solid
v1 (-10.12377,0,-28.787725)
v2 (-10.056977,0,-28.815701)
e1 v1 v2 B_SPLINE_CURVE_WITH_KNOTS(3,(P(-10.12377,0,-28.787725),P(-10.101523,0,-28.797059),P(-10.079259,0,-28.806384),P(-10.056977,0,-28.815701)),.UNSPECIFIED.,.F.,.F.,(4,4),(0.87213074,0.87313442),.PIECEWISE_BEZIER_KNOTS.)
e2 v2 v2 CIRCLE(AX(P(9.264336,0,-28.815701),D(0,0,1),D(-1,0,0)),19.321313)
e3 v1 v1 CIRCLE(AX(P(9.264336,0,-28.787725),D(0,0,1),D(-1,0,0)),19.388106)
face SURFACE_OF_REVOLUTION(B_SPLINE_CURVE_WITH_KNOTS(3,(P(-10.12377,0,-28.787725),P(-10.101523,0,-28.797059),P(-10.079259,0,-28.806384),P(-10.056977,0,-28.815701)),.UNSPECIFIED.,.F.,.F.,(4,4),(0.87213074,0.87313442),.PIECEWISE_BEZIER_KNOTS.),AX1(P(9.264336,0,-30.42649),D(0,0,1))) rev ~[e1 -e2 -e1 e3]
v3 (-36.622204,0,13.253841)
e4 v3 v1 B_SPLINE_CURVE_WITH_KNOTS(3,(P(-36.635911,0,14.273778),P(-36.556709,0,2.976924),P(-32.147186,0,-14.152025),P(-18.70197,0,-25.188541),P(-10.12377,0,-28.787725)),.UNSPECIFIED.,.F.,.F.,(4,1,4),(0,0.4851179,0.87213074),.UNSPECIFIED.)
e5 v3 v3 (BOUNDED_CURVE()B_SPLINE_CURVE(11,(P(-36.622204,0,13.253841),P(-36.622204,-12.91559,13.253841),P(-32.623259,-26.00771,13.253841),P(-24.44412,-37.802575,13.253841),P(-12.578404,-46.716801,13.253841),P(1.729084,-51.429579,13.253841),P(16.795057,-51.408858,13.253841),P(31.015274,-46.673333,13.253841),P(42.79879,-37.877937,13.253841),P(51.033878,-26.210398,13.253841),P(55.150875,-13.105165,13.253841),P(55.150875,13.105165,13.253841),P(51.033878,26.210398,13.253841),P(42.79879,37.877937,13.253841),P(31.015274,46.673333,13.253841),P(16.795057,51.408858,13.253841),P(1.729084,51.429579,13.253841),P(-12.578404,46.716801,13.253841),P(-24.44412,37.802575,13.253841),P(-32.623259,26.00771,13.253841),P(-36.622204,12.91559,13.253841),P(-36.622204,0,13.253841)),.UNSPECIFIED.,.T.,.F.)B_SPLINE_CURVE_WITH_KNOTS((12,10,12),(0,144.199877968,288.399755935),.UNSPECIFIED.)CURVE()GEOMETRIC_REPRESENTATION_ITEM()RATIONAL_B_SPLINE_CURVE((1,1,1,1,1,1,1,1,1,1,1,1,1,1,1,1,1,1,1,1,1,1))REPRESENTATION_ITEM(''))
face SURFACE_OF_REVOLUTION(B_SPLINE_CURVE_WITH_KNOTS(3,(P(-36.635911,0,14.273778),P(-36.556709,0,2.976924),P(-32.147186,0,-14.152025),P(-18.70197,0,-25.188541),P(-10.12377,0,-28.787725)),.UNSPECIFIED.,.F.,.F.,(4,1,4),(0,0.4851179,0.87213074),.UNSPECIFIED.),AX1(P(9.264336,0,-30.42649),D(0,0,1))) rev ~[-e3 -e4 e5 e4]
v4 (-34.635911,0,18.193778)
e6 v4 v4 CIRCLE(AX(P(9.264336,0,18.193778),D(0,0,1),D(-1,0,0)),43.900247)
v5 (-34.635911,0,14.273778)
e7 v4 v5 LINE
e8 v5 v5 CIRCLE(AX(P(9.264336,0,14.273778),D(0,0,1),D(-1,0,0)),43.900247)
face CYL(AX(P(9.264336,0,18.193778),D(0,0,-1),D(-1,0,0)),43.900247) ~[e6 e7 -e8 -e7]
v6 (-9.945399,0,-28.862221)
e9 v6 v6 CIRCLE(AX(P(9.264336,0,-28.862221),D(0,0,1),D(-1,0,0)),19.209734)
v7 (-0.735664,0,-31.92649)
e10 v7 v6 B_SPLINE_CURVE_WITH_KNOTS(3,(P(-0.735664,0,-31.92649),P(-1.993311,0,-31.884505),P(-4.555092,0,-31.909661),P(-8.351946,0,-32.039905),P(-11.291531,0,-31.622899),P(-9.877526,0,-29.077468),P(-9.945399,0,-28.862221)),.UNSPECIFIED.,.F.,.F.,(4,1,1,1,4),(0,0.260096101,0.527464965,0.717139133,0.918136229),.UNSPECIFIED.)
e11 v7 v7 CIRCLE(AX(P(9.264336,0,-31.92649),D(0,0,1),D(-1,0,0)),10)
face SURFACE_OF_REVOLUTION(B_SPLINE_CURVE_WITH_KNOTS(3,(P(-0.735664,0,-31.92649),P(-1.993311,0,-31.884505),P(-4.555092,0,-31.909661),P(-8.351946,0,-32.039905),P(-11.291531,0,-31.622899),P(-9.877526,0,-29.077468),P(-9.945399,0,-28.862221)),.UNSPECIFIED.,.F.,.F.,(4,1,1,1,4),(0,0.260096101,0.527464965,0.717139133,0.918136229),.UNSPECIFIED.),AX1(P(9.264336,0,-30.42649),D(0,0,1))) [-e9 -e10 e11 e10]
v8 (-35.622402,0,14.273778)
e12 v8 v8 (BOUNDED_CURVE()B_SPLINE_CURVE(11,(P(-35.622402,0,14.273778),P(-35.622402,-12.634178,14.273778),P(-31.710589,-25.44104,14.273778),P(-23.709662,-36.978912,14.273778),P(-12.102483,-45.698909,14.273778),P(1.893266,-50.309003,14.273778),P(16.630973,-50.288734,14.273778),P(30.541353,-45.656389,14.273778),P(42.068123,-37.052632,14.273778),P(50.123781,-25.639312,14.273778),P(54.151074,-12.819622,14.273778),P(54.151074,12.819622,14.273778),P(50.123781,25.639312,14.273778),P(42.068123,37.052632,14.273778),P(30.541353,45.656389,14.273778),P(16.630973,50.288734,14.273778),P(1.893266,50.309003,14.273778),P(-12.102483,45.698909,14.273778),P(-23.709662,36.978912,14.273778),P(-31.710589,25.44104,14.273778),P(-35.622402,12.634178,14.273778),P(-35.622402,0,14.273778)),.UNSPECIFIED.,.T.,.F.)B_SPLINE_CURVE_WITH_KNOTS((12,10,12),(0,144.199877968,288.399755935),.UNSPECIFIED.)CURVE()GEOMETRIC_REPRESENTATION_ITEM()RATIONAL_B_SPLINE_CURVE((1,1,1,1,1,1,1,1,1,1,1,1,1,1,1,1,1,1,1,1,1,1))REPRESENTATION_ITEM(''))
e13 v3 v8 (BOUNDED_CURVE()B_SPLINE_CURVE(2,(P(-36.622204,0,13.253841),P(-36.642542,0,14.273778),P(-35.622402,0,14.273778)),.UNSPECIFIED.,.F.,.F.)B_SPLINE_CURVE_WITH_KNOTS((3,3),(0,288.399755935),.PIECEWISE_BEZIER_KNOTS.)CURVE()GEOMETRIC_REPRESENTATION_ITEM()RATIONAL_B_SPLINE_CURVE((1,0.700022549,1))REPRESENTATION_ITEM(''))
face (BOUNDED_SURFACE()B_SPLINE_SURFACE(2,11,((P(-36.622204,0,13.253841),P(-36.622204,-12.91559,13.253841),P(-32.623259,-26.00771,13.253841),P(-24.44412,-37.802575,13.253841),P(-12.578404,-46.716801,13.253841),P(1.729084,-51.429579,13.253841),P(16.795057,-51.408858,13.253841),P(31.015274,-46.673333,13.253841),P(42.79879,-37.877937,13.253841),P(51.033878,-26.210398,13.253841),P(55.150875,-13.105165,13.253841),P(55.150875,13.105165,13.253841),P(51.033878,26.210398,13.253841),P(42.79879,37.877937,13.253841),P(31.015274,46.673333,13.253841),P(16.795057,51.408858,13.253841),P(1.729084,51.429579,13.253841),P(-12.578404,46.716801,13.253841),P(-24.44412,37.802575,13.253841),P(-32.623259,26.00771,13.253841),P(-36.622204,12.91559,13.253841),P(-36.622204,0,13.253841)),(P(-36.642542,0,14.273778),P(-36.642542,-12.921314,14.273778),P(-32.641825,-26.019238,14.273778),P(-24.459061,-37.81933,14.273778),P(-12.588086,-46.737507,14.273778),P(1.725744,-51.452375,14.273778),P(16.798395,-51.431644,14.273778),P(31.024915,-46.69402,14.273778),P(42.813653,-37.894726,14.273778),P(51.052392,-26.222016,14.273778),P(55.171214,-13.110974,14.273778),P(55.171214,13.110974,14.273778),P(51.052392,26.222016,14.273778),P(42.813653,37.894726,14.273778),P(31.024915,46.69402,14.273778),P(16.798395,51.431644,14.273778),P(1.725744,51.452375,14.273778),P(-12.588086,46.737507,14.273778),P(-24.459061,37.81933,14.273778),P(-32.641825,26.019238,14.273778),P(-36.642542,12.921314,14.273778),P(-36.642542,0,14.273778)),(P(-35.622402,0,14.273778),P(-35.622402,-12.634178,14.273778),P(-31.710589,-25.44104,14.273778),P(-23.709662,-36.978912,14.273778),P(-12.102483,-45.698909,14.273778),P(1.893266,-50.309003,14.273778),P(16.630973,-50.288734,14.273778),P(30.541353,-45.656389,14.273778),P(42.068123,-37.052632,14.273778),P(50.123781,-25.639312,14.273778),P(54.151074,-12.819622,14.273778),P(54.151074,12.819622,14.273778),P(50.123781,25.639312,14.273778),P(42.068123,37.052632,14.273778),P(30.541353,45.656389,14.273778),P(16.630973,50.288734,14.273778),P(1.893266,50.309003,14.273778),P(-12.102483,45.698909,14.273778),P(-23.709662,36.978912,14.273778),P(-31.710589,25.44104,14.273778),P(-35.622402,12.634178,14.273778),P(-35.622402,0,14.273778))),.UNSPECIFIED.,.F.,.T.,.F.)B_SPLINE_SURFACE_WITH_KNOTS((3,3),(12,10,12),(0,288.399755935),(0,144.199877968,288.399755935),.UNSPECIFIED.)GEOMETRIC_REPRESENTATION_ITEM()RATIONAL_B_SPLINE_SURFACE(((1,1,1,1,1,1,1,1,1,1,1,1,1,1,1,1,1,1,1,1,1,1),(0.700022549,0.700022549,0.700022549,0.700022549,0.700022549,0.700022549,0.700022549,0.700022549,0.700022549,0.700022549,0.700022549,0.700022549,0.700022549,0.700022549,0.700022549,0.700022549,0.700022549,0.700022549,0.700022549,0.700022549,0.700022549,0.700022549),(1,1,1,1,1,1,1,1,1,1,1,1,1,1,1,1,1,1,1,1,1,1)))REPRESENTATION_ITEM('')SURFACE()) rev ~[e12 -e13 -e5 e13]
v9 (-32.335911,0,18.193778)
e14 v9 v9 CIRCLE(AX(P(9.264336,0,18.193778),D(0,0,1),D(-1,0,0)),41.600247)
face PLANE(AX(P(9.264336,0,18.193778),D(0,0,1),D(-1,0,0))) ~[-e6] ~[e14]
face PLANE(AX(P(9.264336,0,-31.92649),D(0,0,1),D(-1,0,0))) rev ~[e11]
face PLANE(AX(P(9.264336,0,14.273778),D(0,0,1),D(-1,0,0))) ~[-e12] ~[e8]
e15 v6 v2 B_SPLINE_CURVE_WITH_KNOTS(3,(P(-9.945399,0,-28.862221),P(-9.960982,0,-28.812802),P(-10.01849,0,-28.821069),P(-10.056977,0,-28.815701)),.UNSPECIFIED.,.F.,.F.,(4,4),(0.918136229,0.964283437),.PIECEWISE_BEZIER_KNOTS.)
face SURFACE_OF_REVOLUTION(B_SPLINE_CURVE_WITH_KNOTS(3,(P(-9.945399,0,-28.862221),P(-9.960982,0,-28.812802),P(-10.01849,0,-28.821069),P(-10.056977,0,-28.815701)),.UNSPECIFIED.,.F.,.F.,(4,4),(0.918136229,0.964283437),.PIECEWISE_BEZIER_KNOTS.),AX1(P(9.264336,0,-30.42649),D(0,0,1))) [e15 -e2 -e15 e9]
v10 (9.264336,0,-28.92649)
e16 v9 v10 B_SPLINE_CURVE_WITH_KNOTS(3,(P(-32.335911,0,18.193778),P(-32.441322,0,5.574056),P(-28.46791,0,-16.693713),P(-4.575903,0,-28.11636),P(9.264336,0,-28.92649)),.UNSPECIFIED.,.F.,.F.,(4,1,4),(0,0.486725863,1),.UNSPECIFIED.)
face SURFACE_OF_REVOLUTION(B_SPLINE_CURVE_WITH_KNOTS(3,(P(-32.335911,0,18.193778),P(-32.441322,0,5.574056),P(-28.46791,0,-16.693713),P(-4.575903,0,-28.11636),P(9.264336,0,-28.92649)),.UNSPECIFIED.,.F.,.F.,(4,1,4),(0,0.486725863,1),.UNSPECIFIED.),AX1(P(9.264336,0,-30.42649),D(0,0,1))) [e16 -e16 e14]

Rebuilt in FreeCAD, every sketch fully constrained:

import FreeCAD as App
import Part
import Sketcher
Q = App.Units.Quantity


def edges_at(feature, points):
    """Names of the edges that pass closest to the given points."""
    edges = feature.Shape.Edges
    near = lambda p: min(range(len(edges)), key=lambda i: edges[i].distToShape(Part.Vertex(*p))[0])
    return sorted({f"Edge{near(p) + 1}" for p in points})

doc = App.newDocument("Part")
params = doc.addObject("Spreadsheet::Sheet", "Params")
for row, (alias, value) in enumerate([
    ("sketch1_width", "2 mm"),
    ("revolution_angle", "360 deg"),
    ("fillet_radius", "1 mm"),
], start=1):
    params.set(f"A{row}", alias)
    params.set(f"B{row}", "=" + value)
    params.setAlias(f"B{row}", alias)

body = doc.addObject("PartDesign::Body", "Body")

sketch1 = doc.addObject("Sketcher::SketchObject", "Sketch")
body.addObject(sketch1)
sketch1.AttachmentSupport = (doc.XZ_Plane, [""])
sketch1.MapMode = "FlatFace"
sketch1.addGeometry([
    Part.BSplineCurve([App.Vector(-32.335911, 18.193778, 0), App.Vector(-32.441322, 5.574056, 0), App.Vector(-28.46791, -16.693713, 0), App.Vector(-4.575903, -28.11636, 0), App.Vector(9.264336, -28.92649, 0)], [4, 1, 4], [0, 0.486725863, 1], False, 3, [1, 1, 1, 1, 1], False),
    Part.LineSegment(App.Vector(-32.335911, 18.193778, 0), App.Vector(-34.635911, 18.193778, 0)),
    Part.LineSegment(App.Vector(-34.635911, 18.193778, 0), App.Vector(-34.635911, 14.273778, 0)),
    Part.LineSegment(App.Vector(-34.635911, 14.273778, 0), App.Vector(-36.635911, 14.273778, 0)),
    Part.BSplineCurve([App.Vector(-36.635911, 14.273778, 0), App.Vector(-36.556709, 2.976924, 0), App.Vector(-32.147186, -14.152025, 0), App.Vector(-18.70197, -25.188541, 0), App.Vector(-10.12377, -28.787725, 0)], [4, 1, 4], [0, 0.4851179, 0.87213074], False, 3, [1, 1, 1, 1, 1], False),
    Part.BSplineCurve([App.Vector(-10.12377, -28.787725, 0), App.Vector(-10.101523, -28.797059, 0), App.Vector(-10.079259, -28.806384, 0), App.Vector(-10.056977, -28.815701, 0)], [4, 4], [0.87213074, 0.87313442], False, 3, [1, 1, 1, 1], False),
    Part.BSplineCurve([App.Vector(-9.945399, -28.862221, 0), App.Vector(-9.960982, -28.812802, 0), App.Vector(-10.01849, -28.821069, 0), App.Vector(-10.056977, -28.815701, 0)], [4, 4], [0.918136229, 0.964283437], False, 3, [1, 1, 1, 1], False),
    Part.BSplineCurve([App.Vector(-0.735664, -31.92649, 0), App.Vector(-1.993311, -31.884505, 0), App.Vector(-4.555092, -31.909661, 0), App.Vector(-8.351946, -32.039905, 0), App.Vector(-11.291531, -31.622899, 0), App.Vector(-9.877526, -29.077468, 0), App.Vector(-9.945399, -28.862221, 0)], [4, 1, 1, 1, 4], [0, 0.260096101, 0.527464965, 0.717139133, 0.918136229], False, 3, [1, 1, 1, 1, 1, 1, 1], False),
    Part.LineSegment(App.Vector(-0.735664, -31.92649, 0), App.Vector(9.264336, -31.92649, 0)),
    Part.LineSegment(App.Vector(9.264336, -31.92649, 0), App.Vector(9.264336, -28.92649, 0)),
], False)
sketch1.addGeometry(Part.LineSegment(App.Vector(9.264336, -31.92649, 0), App.Vector(9.264336, 18.193778, 0)), True)
sketch1.addConstraint([
    Sketcher.Constraint("Block", 0),
    Sketcher.Constraint("Block", 4),
    Sketcher.Constraint("Block", 5),
    Sketcher.Constraint("Block", 6),
    Sketcher.Constraint("Block", 7),
    Sketcher.Constraint("Coincident", 0, 1, 1, 1),
    Sketcher.Constraint("Coincident", 1, 2, 2, 1),
    Sketcher.Constraint("Coincident", 2, 2, 3, 1),
    Sketcher.Constraint("Coincident", 3, 2, 4, 1),
    Sketcher.Constraint("Coincident", 7, 1, 8, 1),
    Sketcher.Constraint("Coincident", 8, 2, 9, 1),
    Sketcher.Constraint("Coincident", 9, 2, 0, 2),
    Sketcher.Constraint("Horizontal", 1),
    Sketcher.Constraint("Vertical", 2),
    Sketcher.Constraint("Horizontal", 3),
    Sketcher.Constraint("Horizontal", 8),
    Sketcher.Constraint("Vertical", 9),
    Sketcher.Constraint("Vertical", 10),
    Sketcher.Constraint("Coincident", 10, 1, 8, 2),
    Sketcher.Constraint("Horizontal", 1, 2, 10, 2),
    Sketcher.Constraint("DistanceX", 3, 2, 3, 1, Q("2 mm")),
])
sketch1.setExpression("Constraints[20]", "Params.sketch1_width")
revolution = doc.addObject("PartDesign::Revolution", "Revolution")
body.addObject(revolution)
revolution.Profile = sketch1
revolution.ReferenceAxis = (sketch1, ["Axis0"])
revolution.setExpression("Angle", "Params.revolution_angle")
doc.recompute()

fillet = doc.addObject("PartDesign::Fillet", "Fillet")
body.addObject(fillet)
fillet.Base = (revolution, edges_at(revolution, [(55.165, 0, 14.274)]))
fillet.setExpression("Radius", "Params.fillet_radius")

doc.recompute()
